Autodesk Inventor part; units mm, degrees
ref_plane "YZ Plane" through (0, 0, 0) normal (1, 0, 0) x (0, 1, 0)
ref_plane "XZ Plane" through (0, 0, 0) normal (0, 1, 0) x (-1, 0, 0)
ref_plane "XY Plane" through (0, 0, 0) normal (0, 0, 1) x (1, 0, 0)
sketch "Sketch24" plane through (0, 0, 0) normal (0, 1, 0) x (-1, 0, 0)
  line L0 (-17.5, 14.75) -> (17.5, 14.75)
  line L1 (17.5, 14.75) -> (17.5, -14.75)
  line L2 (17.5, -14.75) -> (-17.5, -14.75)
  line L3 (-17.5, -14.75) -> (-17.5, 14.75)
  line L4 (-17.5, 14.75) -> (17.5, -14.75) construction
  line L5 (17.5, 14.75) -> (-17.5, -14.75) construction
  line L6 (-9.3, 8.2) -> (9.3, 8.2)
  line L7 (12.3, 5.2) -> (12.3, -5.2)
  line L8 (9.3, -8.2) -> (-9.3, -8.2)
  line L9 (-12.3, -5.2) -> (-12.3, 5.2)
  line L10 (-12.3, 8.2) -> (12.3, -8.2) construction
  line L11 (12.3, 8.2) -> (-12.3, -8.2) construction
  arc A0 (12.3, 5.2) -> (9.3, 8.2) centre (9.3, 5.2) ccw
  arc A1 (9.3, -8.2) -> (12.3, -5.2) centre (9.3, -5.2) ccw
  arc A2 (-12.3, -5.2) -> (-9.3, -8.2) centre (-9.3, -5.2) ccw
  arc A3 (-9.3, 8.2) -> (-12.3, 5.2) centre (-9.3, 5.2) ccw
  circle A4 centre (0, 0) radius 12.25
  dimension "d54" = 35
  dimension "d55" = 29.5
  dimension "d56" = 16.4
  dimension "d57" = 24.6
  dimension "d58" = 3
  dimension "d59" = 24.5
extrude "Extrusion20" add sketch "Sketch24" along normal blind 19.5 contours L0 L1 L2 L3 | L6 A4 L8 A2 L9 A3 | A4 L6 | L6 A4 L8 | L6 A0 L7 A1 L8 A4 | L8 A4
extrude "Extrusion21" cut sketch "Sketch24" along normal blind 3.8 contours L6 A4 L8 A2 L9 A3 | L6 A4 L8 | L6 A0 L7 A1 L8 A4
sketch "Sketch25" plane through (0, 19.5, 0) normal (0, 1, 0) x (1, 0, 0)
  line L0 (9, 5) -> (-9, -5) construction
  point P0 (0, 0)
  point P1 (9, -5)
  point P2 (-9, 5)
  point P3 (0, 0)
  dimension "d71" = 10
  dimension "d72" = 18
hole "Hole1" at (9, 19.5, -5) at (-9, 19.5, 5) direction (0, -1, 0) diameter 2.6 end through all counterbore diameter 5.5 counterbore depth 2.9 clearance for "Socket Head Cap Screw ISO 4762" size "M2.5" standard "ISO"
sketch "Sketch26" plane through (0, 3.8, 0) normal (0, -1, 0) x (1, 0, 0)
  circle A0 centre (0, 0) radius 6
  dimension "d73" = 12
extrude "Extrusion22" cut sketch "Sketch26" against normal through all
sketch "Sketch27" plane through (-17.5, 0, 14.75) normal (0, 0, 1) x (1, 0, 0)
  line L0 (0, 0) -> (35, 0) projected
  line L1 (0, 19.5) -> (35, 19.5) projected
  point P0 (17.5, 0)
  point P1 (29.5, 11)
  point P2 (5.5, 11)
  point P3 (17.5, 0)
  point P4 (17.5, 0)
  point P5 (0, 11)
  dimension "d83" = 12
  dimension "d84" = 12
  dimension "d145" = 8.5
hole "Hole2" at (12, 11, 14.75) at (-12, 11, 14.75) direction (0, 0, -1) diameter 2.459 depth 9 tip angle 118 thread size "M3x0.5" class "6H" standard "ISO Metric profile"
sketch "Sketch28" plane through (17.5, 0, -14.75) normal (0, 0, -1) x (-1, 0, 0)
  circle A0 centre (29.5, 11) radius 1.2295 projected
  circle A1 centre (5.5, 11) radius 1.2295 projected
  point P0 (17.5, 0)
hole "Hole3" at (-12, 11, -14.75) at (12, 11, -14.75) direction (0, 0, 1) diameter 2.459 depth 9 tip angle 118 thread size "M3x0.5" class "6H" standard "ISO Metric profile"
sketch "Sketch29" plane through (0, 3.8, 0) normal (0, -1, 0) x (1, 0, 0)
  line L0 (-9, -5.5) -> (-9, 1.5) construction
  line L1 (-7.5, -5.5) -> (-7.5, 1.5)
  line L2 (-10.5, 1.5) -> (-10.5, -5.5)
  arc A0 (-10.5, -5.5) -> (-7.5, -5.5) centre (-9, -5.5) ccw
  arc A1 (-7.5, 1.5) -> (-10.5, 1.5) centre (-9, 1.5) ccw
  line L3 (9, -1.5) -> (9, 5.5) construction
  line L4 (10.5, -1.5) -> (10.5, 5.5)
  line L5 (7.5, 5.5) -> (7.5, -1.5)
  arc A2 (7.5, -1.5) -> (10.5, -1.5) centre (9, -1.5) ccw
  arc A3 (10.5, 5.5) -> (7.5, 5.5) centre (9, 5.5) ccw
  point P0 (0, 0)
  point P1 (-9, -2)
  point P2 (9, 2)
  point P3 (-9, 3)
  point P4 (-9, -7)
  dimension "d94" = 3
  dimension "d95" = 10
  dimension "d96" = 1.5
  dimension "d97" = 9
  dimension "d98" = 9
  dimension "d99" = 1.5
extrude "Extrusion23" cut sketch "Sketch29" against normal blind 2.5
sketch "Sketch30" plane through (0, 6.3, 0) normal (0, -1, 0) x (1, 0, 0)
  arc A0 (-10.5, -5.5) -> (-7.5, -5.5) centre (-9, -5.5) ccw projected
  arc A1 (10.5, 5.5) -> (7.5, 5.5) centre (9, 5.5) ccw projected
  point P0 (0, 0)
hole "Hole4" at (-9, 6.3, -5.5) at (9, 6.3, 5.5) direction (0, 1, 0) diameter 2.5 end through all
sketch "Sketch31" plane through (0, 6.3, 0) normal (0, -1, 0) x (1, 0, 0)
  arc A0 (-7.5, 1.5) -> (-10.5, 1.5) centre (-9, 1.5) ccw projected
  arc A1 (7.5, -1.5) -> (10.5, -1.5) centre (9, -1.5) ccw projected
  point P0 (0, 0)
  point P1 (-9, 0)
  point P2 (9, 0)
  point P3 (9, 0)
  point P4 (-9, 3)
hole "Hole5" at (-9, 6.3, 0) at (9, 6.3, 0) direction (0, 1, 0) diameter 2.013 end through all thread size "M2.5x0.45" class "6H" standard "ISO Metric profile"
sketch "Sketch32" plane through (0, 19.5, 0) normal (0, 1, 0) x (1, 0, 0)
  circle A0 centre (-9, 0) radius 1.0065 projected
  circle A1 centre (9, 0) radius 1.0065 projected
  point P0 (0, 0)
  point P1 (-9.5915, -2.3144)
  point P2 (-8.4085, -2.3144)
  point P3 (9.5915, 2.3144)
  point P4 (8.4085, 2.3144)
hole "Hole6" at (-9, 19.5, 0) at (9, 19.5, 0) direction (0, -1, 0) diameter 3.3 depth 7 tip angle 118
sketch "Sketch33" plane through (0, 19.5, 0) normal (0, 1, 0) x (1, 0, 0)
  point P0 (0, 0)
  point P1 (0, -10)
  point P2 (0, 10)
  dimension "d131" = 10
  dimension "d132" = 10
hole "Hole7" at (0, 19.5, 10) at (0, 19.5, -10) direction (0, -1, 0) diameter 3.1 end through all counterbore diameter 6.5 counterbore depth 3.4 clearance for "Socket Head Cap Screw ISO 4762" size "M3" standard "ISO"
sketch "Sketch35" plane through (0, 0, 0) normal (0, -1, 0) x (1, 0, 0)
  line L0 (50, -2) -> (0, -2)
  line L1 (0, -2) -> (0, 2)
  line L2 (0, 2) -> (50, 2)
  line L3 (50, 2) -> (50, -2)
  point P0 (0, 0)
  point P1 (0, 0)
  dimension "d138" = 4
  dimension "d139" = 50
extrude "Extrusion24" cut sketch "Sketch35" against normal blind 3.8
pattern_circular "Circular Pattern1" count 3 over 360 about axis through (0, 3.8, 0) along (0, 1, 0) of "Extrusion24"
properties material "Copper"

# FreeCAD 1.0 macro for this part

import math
import FreeCAD as App
import Part
import Sketcher
from FreeCAD import Vector
Q = App.Units.Quantity


def add_polygon(sketch, points):
    """Adds a closed chain of lines whose ends are joined by coincident constraints."""
    first, n = sketch.GeometryCount, len(points)
    for a, b in zip(points, points[1:] + points[:1]):
        sketch.addGeometry(Part.LineSegment(App.Vector(*a, 0), App.Vector(*b, 0)), False)
    for i in range(n):
        sketch.addConstraint(Sketcher.Constraint("Coincident", first + i, 2, first + (i + 1) % n, 1))

doc = App.newDocument("Part")
body = doc.addObject("PartDesign::Body", "Body")

# Sketch on XZ plane
sketch1 = body.newObject("Sketcher::SketchObject", "Sketch")
sketch1.AttachmentSupport = (doc.getObject("XZ_Plane"), [""])
sketch1.MapMode = "FlatFace"
add_polygon(sketch1, [(-18, 15), (18, 15), (18, -15), (-18, -15)])  # lines 0-3
sketch1.addConstraint(Sketcher.Constraint("Horizontal", 0))
sketch1.addConstraint(Sketcher.Constraint("Vertical", 1))
sketch1.addConstraint(Sketcher.Constraint("Horizontal", 2))
sketch1.addConstraint(Sketcher.Constraint("Vertical", 3))
sketch1.addConstraint(Sketcher.Constraint("Symmetric", 0, 2, 2, 2, -1, 1))
sketch1.addConstraint(Sketcher.Constraint("DistanceX", 0, 1, 0, 2, Q("35 mm")))
sketch1.addConstraint(Sketcher.Constraint("DistanceY", 1, 2, 1, 1, Q("29.5 mm")))
pad1 = body.newObject("PartDesign::Pad", "Pad")
pad1.Profile = sketch1
pad1.Length = 19.5
pad1.Reversed = True

# Sketch on XZ plane
sketch2 = body.newObject("Sketcher::SketchObject", "Sketch001")
sketch2.AttachmentSupport = (doc.getObject("XZ_Plane"), [""])
sketch2.MapMode = "FlatFace"
sketch2.addGeometry(Part.ArcOfCircle(Part.Circle(Vector(9.3, 5.2, 0), Vector(0, 0, 1), 3), math.radians(0), math.radians(90)), False)
sketch2.addGeometry(Part.LineSegment(Vector(12.3, 5.2, 0), Vector(12.3, -5.2, 0)), False)
sketch2.addGeometry(Part.ArcOfCircle(Part.Circle(Vector(9.3, -5.2, 0), Vector(0, 0, 1), 3), math.radians(-90), math.radians(0)), False)
sketch2.addGeometry(Part.LineSegment(Vector(9.3, -8.2, 0), Vector(-9.3, -8.2, 0)), False)
sketch2.addGeometry(Part.ArcOfCircle(Part.Circle(Vector(-9.3, -5.2, 0), Vector(0, 0, 1), 3), math.radians(180), math.radians(270)), False)
sketch2.addGeometry(Part.LineSegment(Vector(-12.3, -5.2, 0), Vector(-12.3, 5.2, 0)), False)
sketch2.addGeometry(Part.ArcOfCircle(Part.Circle(Vector(-9.3, 5.2, 0), Vector(0, 0, 1), 3), math.radians(90), math.radians(180)), False)
sketch2.addGeometry(Part.LineSegment(Vector(-9.3, 8.2, 0), Vector(9.3, 8.2, 0)), False)
sketch2.addConstraint(Sketcher.Constraint("Tangent", 0, 1, 1, 1))
sketch2.addConstraint(Sketcher.Constraint("Tangent", 1, 2, 2, 2))
sketch2.addConstraint(Sketcher.Constraint("Tangent", 2, 1, 3, 1))
sketch2.addConstraint(Sketcher.Constraint("Tangent", 3, 2, 4, 2))
sketch2.addConstraint(Sketcher.Constraint("Tangent", 4, 1, 5, 1))
sketch2.addConstraint(Sketcher.Constraint("Tangent", 5, 2, 6, 2))
sketch2.addConstraint(Sketcher.Constraint("Tangent", 6, 1, 7, 1))
sketch2.addConstraint(Sketcher.Constraint("Tangent", 7, 2, 0, 2))
sketch2.addConstraint(Sketcher.Constraint("Vertical", 1))
sketch2.addConstraint(Sketcher.Constraint("Horizontal", 3))
sketch2.addConstraint(Sketcher.Constraint("Vertical", 5))
sketch2.addConstraint(Sketcher.Constraint("Horizontal", 7))
sketch2.addConstraint(Sketcher.Constraint("Equal", 0, 2))
sketch2.addConstraint(Sketcher.Constraint("Equal", 2, 4))
sketch2.addConstraint(Sketcher.Constraint("Equal", 4, 6))
sketch2.addConstraint(Sketcher.Constraint("Symmetric", 0, 3, 4, 3, -1, 1))
sketch2.addConstraint(Sketcher.Constraint("Radius", 0, Q("3 mm")))
sketch2.addConstraint(Sketcher.Constraint("DistanceY", 3, 2, 6, 1, Q("16.4 mm")))
sketch2.addConstraint(Sketcher.Constraint("DistanceX", 3, 2, 3, 1, Q("18.6 mm")))
pocket1 = body.newObject("PartDesign::Pocket", "Pocket")
pocket1.Profile = sketch2
pocket1.Length = 3.8

# Sketch on XZ plane
sketch3 = body.newObject("Sketcher::SketchObject", "Sketch002")
sketch3.AttachmentSupport = (doc.getObject("XZ_Plane"), [""])
sketch3.MapMode = "FlatFace"
sketch3.AttachmentOffset = App.Placement(Vector(0, 0, -19.5), App.Rotation())
sketch3.addGeometry(Part.Circle(Vector(9, -5, 0), Vector(0, 0, 1), 1.3), False)
sketch3.addGeometry(Part.Circle(Vector(-9, 5, 0), Vector(0, 0, 1), 1.3), False)
sketch3.addConstraint(Sketcher.Constraint("Equal", 0, 1))
sketch3.addConstraint(Sketcher.Constraint("Symmetric", 0, 3, 1, 3, -1, 1))
sketch3.addConstraint(Sketcher.Constraint("Diameter", 0, Q("2.6 mm")))
sketch3.addConstraint(Sketcher.Constraint("DistanceX", -1, 1, 0, 3, Q("9 mm")))
sketch3.addConstraint(Sketcher.Constraint("DistanceY", 0, 3, -1, 1, Q("5 mm")))
doc.recompute()
hole = body.newObject("PartDesign::Hole", "Hole")
hole.Profile = sketch3
hole.ThreadType = "None"
hole.Diameter = 2.6
hole.DepthType = "ThroughAll"
hole.HoleCutType = "Counterbore"
hole.HoleCutDiameter = 5.5
hole.HoleCutDepth = 2.9
hole.Reversed = True

# Sketch on XZ plane
sketch4 = body.newObject("Sketcher::SketchObject", "Sketch003")
sketch4.AttachmentSupport = (doc.getObject("XZ_Plane"), [""])
sketch4.MapMode = "FlatFace"
sketch4.AttachmentOffset = App.Placement(Vector(0, 0, -3.8), App.Rotation())
sketch4.addGeometry(Part.Circle(Vector(0, 0, 0), Vector(0, 0, 1), 6), False)
sketch4.addConstraint(Sketcher.Constraint("Coincident", 0, 3, -1, 1))
sketch4.addConstraint(Sketcher.Constraint("Diameter", 0, Q("12 mm")))
pocket2 = body.newObject("PartDesign::Pocket", "Pocket001")
pocket2.Profile = sketch4
pocket2.Type = "ThroughAll"

# Sketch on XY plane
sketch5 = body.newObject("Sketcher::SketchObject", "Sketch004")
sketch5.AttachmentSupport = (doc.getObject("XY_Plane"), [""])
sketch5.MapMode = "FlatFace"
sketch5.AttachmentOffset = App.Placement(Vector(0, 0, 14.75), App.Rotation())
sketch5.addGeometry(Part.Circle(Vector(12, 11, 0), Vector(0, 0, 1), 1.2), False)
sketch5.addGeometry(Part.Circle(Vector(-12, 11, 0), Vector(0, 0, 1), 1.2), False)
sketch5.addConstraint(Sketcher.Constraint("Equal", 0, 1))
sketch5.addConstraint(Sketcher.Constraint("Symmetric", 0, 3, 1, 3, -2))
sketch5.addConstraint(Sketcher.Constraint("Diameter", 0, Q("2.459 mm")))
sketch5.addConstraint(Sketcher.Constraint("DistanceX", -1, 1, 0, 3, Q("12 mm")))
sketch5.addConstraint(Sketcher.Constraint("DistanceY", -1, 1, 0, 3, Q("11 mm")))
doc.recompute()
hole2 = body.newObject("PartDesign::Hole", "Hole001")
hole2.Profile = sketch5
hole2.ThreadType = "None"
hole2.Diameter = 2.459
hole2.DepthType = "Dimension"
hole2.Depth = 9
hole2.DrillPoint = "Angled"
hole2.DrillPointAngle = 118

# Sketch on XY plane
sketch6 = body.newObject("Sketcher::SketchObject", "Sketch005")
sketch6.AttachmentSupport = (doc.getObject("XY_Plane"), [""])
sketch6.MapMode = "FlatFace"
sketch6.AttachmentOffset = App.Placement(Vector(0, 0, -14.75), App.Rotation())
sketch6.addGeometry(Part.Circle(Vector(-12, 11, 0), Vector(0, 0, 1), 1.2), False)
sketch6.addGeometry(Part.Circle(Vector(12, 11, 0), Vector(0, 0, 1), 1.2), False)
sketch6.addConstraint(Sketcher.Constraint("Equal", 0, 1))
sketch6.addConstraint(Sketcher.Constraint("Symmetric", 0, 3, 1, 3, -2))
sketch6.addConstraint(Sketcher.Constraint("Diameter", 0, Q("2.459 mm")))
sketch6.addConstraint(Sketcher.Constraint("DistanceX", 0, 3, -1, 1, Q("12 mm")))
sketch6.addConstraint(Sketcher.Constraint("DistanceY", -1, 1, 0, 3, Q("11 mm")))
doc.recompute()
hole3 = body.newObject("PartDesign::Hole", "Hole002")
hole3.Profile = sketch6
hole3.ThreadType = "None"
hole3.Diameter = 2.459
hole3.DepthType = "Dimension"
hole3.Depth = 9
hole3.DrillPoint = "Angled"
hole3.DrillPointAngle = 118
hole3.Reversed = True

# Sketch on XZ plane
sketch7 = body.newObject("Sketcher::SketchObject", "Sketch006")
sketch7.AttachmentSupport = (doc.getObject("XZ_Plane"), [""])
sketch7.MapMode = "FlatFace"
sketch7.AttachmentOffset = App.Placement(Vector(0, 0, -3.8), App.Rotation())
sketch7.addGeometry(Part.ArcOfCircle(Part.Circle(Vector(-9, -5.5, 0), Vector(0, 0, 1), 1.5), math.radians(180), math.radians(360)), False)
sketch7.addGeometry(Part.LineSegment(Vector(-7.5, -5.5, 0), Vector(-7.5, 1.5, 0)), False)
sketch7.addGeometry(Part.ArcOfCircle(Part.Circle(Vector(-9, 1.5, 0), Vector(0, 0, 1), 1.5), math.radians(0), math.radians(180)), False)
sketch7.addGeometry(Part.LineSegment(Vector(-10.5, 1.5, 0), Vector(-10.5, -5.5, 0)), False)
sketch7.addGeometry(Part.ArcOfCircle(Part.Circle(Vector(9, -1.5, 0), Vector(0, 0, 1), 1.5), math.radians(180), math.radians(360)), False)
sketch7.addGeometry(Part.LineSegment(Vector(10.5, -1.5, 0), Vector(10.5, 5.5, 0)), False)
sketch7.addGeometry(Part.ArcOfCircle(Part.Circle(Vector(9, 5.5, 0), Vector(0, 0, 1), 1.5), math.radians(0), math.radians(180)), False)
sketch7.addGeometry(Part.LineSegment(Vector(7.5, 5.5, 0), Vector(7.5, -1.5, 0)), False)
sketch7.addConstraint(Sketcher.Constraint("Tangent", 0, 2, 1, 1))
sketch7.addConstraint(Sketcher.Constraint("Tangent", 1, 2, 2, 1))
sketch7.addConstraint(Sketcher.Constraint("Tangent", 2, 2, 3, 1))
sketch7.addConstraint(Sketcher.Constraint("Tangent", 3, 2, 0, 1))
sketch7.addConstraint(Sketcher.Constraint("Tangent", 4, 2, 5, 1))
sketch7.addConstraint(Sketcher.Constraint("Tangent", 5, 2, 6, 1))
sketch7.addConstraint(Sketcher.Constraint("Tangent", 6, 2, 7, 1))
sketch7.addConstraint(Sketcher.Constraint("Tangent", 7, 2, 4, 1))
sketch7.addConstraint(Sketcher.Constraint("Vertical", 1))
sketch7.addConstraint(Sketcher.Constraint("Vertical", 3))
sketch7.addConstraint(Sketcher.Constraint("Vertical", 5))
sketch7.addConstraint(Sketcher.Constraint("Vertical", 7))
sketch7.addConstraint(Sketcher.Constraint("Equal", 2, 4))
sketch7.addConstraint(Sketcher.Constraint("Symmetric", 2, 3, 4, 3, -1, 1))
sketch7.addConstraint(Sketcher.Constraint("Equal", 3, 5))
sketch7.addConstraint(Sketcher.Constraint("Radius", 0, Q("1.5 mm")))
sketch7.addConstraint(Sketcher.Constraint("DistanceX", 0, 3, -1, 1, Q("9 mm")))
sketch7.addConstraint(Sketcher.Constraint("DistanceY", 4, 3, 2, 3, Q("3 mm")))
sketch7.addConstraint(Sketcher.Constraint("DistanceY", 1, 1, 1, 2, Q("7 mm")))
pocket3 = body.newObject("PartDesign::Pocket", "Pocket002")
pocket3.Profile = sketch7
pocket3.Length = 2.5

# Sketch on XZ plane
sketch8 = body.newObject("Sketcher::SketchObject", "Sketch007")
sketch8.AttachmentSupport = (doc.getObject("XZ_Plane"), [""])
sketch8.MapMode = "FlatFace"
sketch8.AttachmentOffset = App.Placement(Vector(0, 0, -6.3), App.Rotation())
sketch8.addGeometry(Part.Circle(Vector(-9, -5.5, 0), Vector(0, 0, 1), 1.2), False)
sketch8.addGeometry(Part.Circle(Vector(9, 5.5, 0), Vector(0, 0, 1), 1.2), False)
sketch8.addConstraint(Sketcher.Constraint("Equal", 0, 1))
sketch8.addConstraint(Sketcher.Constraint("Symmetric", 0, 3, 1, 3, -1, 1))
sketch8.addConstraint(Sketcher.Constraint("Diameter", 0, Q("2.5 mm")))
sketch8.addConstraint(Sketcher.Constraint("DistanceX", 0, 3, -1, 1, Q("9 mm")))
sketch8.addConstraint(Sketcher.Constraint("DistanceY", 0, 3, 1, 3, Q("11 mm")))
doc.recompute()
hole4 = body.newObject("PartDesign::Hole", "Hole003")
hole4.Profile = sketch8
hole4.ThreadType = "None"
hole4.Diameter = 2.5
hole4.DepthType = "ThroughAll"

# Sketch on XZ plane
sketch9 = body.newObject("Sketcher::SketchObject", "Sketch008")
sketch9.AttachmentSupport = (doc.getObject("XZ_Plane"), [""])
sketch9.MapMode = "FlatFace"
sketch9.AttachmentOffset = App.Placement(Vector(0, 0, -6.3), App.Rotation())
sketch9.addGeometry(Part.Circle(Vector(-9, 0, 0), Vector(0, 0, 1), 1), False)
sketch9.addGeometry(Part.Circle(Vector(9, 0, 0), Vector(0, 0, 1), 1), False)
sketch9.addConstraint(Sketcher.Constraint("Equal", 0, 1))
sketch9.addConstraint(Sketcher.Constraint("Symmetric", 0, 3, 1, 3, -1, 1))
sketch9.addConstraint(Sketcher.Constraint("PointOnObject", 0, 3, -1))
sketch9.addConstraint(Sketcher.Constraint("Diameter", 0, Q("2.013 mm")))
sketch9.addConstraint(Sketcher.Constraint("DistanceX", 0, 3, -1, 1, Q("9 mm")))
doc.recompute()
hole5 = body.newObject("PartDesign::Hole", "Hole004")
hole5.Profile = sketch9
hole5.ThreadType = "None"
hole5.Diameter = 2.013
hole5.DepthType = "ThroughAll"

# Sketch on XZ plane
sketch10 = body.newObject("Sketcher::SketchObject", "Sketch009")
sketch10.AttachmentSupport = (doc.getObject("XZ_Plane"), [""])
sketch10.MapMode = "FlatFace"
sketch10.AttachmentOffset = App.Placement(Vector(0, 0, -19.5), App.Rotation())
sketch10.addGeometry(Part.Circle(Vector(-9, 0, 0), Vector(0, 0, 1), 1.6), False)
sketch10.addGeometry(Part.Circle(Vector(9, 0, 0), Vector(0, 0, 1), 1.6), False)
sketch10.addConstraint(Sketcher.Constraint("Equal", 0, 1))
sketch10.addConstraint(Sketcher.Constraint("Symmetric", 0, 3, 1, 3, -1, 1))
sketch10.addConstraint(Sketcher.Constraint("PointOnObject", 0, 3, -1))
sketch10.addConstraint(Sketcher.Constraint("Diameter", 0, Q("3.3 mm")))
sketch10.addConstraint(Sketcher.Constraint("DistanceX", 0, 3, -1, 1, Q("9 mm")))
doc.recompute()
hole6 = body.newObject("PartDesign::Hole", "Hole005")
hole6.Profile = sketch10
hole6.ThreadType = "None"
hole6.Diameter = 3.3
hole6.DepthType = "Dimension"
hole6.Depth = 7
hole6.DrillPoint = "Angled"
hole6.DrillPointAngle = 118
hole6.Reversed = True

# Sketch on XZ plane
sketch11 = body.newObject("Sketcher::SketchObject", "Sketch010")
sketch11.AttachmentSupport = (doc.getObject("XZ_Plane"), [""])
sketch11.MapMode = "FlatFace"
sketch11.AttachmentOffset = App.Placement(Vector(0, 0, -19.5), App.Rotation())
sketch11.addGeometry(Part.Circle(Vector(0, 10, 0), Vector(0, 0, 1), 1.6), False)
sketch11.addGeometry(Part.Circle(Vector(0, -10, 0), Vector(0, 0, 1), 1.6), False)
sketch11.addConstraint(Sketcher.Constraint("Equal", 0, 1))
sketch11.addConstraint(Sketcher.Constraint("Symmetric", 0, 3, 1, 3, -1, 1))
sketch11.addConstraint(Sketcher.Constraint("PointOnObject", 0, 3, -2))
sketch11.addConstraint(Sketcher.Constraint("Diameter", 0, Q("3.1 mm")))
sketch11.addConstraint(Sketcher.Constraint("DistanceY", -1, 1, 0, 3, Q("10 mm")))
doc.recompute()
hole7 = body.newObject("PartDesign::Hole", "Hole006")
hole7.Profile = sketch11
hole7.ThreadType = "None"
hole7.Diameter = 3.1
hole7.DepthType = "ThroughAll"
hole7.HoleCutType = "Counterbore"
hole7.HoleCutDiameter = 6.5
hole7.HoleCutDepth = 3.4
hole7.Reversed = True

# Sketch on XZ plane
sketch12 = body.newObject("Sketcher::SketchObject", "Sketch011")
sketch12.AttachmentSupport = (doc.getObject("XZ_Plane"), [""])
sketch12.MapMode = "FlatFace"
add_polygon(sketch12, [(0, -2), (50, -2), (50, 2), (0, 2)])  # lines 0-3
sketch12.addConstraint(Sketcher.Constraint("Horizontal", 0))
sketch12.addConstraint(Sketcher.Constraint("Vertical", 1))
sketch12.addConstraint(Sketcher.Constraint("Horizontal", 2))
sketch12.addConstraint(Sketcher.Constraint("Vertical", 3))
sketch12.addConstraint(Sketcher.Constraint("Symmetric", 2, 2, 3, 2, -1, 1))
sketch12.addConstraint(Sketcher.Constraint("DistanceX", 0, 1, 0, 2, Q("50 mm")))
sketch12.addConstraint(Sketcher.Constraint("DistanceY", 1, 1, 1, 2, Q("4 mm")))
pocket4 = body.newObject("PartDesign::Pocket", "Pocket003")
pocket4.Profile = sketch12
pocket4.Length = 3.8
doc.recompute()

polarpattern = body.newObject("PartDesign::PolarPattern", "PolarPattern")
polarpattern.Originals = [pocket4]
polarpattern.Axis = (doc.getObject("Y_Axis"), [""])
polarpattern.Angle = 360
polarpattern.Occurrences = 3
body.Tip = polarpattern

doc.recompute()
